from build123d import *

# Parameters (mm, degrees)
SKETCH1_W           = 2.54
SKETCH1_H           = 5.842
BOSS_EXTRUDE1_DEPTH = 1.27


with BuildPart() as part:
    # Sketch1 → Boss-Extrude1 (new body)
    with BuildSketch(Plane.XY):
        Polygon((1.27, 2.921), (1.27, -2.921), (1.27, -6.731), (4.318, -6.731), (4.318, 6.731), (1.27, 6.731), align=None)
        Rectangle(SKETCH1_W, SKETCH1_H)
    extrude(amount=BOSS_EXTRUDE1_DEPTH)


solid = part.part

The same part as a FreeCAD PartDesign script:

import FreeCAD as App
import Part
import Sketcher
from FreeCAD import Vector
Q = App.Units.Quantity

doc = App.newDocument("Part")
body = doc.addObject("PartDesign::Body", "Body")

sketch1 = doc.addObject("Sketcher::SketchObject", "Sketch")
body.addObject(sketch1)
sketch1.AttachmentSupport = (doc.XY_Plane, [""])
sketch1.MapMode = "FlatFace"
sketch1.addGeometry([
    Part.LineSegment(Vector(1.27, -6.731, 0), Vector(4.318, -6.731, 0)),
    Part.LineSegment(Vector(4.318, -6.731, 0), Vector(4.318, 6.731, 0)),
    Part.LineSegment(Vector(4.318, 6.731, 0), Vector(1.27, 6.731, 0)),
    Part.LineSegment(Vector(1.27, 6.731, 0), Vector(1.27, 2.921, 0)),
    Part.LineSegment(Vector(1.27, 2.921, 0), Vector(-1.27, 2.921, 0)),
    Part.LineSegment(Vector(-1.27, 2.921, 0), Vector(-1.27, -2.921, 0)),
    Part.LineSegment(Vector(-1.27, -2.921, 0), Vector(1.27, -2.921, 0)),
    Part.LineSegment(Vector(1.27, -2.921, 0), Vector(1.27, -6.731, 0)),
], False)
sketch1.addConstraint([
    Sketcher.Constraint("Coincident", 0, 2, 1, 1),
    Sketcher.Constraint("Coincident", 1, 2, 2, 1),
    Sketcher.Constraint("Coincident", 2, 2, 3, 1),
    Sketcher.Constraint("Coincident", 3, 2, 4, 1),
    Sketcher.Constraint("Coincident", 4, 2, 5, 1),
    Sketcher.Constraint("Coincident", 5, 2, 6, 1),
    Sketcher.Constraint("Coincident", 6, 2, 7, 1),
    Sketcher.Constraint("Coincident", 7, 2, 0, 1),
    Sketcher.Constraint("Horizontal", 0),
    Sketcher.Constraint("Vertical", 1),
    Sketcher.Constraint("Horizontal", 2),
    Sketcher.Constraint("Vertical", 3),
    Sketcher.Constraint("Horizontal", 4),
    Sketcher.Constraint("Vertical", 5),
    Sketcher.Constraint("Horizontal", 6),
    Sketcher.Constraint("Vertical", 7),
    Sketcher.Constraint("Symmetric", 3, 2, 5, 2, -1, 1),
    Sketcher.Constraint("Symmetric", 2, 2, 7, 2, -1),
    Sketcher.Constraint("DistanceX", 4, 2, 4, 1, Q("0.1 in")),
    Sketcher.Constraint("DistanceX", 0, 1, 0, 2, Q("0.12 in")),
    Sketcher.Constraint("DistanceY", 1, 1, 1, 2, Q("0.53 in")),
    Sketcher.Constraint("DistanceY", 3, 2, 3, 1, Q("0.15 in")),
])
pad1 = doc.addObject("PartDesign::Pad", "Pad")
body.addObject(pad1)
pad1.Profile = sketch1
pad1.Length = Q("0.05 in")

doc.recompute()
